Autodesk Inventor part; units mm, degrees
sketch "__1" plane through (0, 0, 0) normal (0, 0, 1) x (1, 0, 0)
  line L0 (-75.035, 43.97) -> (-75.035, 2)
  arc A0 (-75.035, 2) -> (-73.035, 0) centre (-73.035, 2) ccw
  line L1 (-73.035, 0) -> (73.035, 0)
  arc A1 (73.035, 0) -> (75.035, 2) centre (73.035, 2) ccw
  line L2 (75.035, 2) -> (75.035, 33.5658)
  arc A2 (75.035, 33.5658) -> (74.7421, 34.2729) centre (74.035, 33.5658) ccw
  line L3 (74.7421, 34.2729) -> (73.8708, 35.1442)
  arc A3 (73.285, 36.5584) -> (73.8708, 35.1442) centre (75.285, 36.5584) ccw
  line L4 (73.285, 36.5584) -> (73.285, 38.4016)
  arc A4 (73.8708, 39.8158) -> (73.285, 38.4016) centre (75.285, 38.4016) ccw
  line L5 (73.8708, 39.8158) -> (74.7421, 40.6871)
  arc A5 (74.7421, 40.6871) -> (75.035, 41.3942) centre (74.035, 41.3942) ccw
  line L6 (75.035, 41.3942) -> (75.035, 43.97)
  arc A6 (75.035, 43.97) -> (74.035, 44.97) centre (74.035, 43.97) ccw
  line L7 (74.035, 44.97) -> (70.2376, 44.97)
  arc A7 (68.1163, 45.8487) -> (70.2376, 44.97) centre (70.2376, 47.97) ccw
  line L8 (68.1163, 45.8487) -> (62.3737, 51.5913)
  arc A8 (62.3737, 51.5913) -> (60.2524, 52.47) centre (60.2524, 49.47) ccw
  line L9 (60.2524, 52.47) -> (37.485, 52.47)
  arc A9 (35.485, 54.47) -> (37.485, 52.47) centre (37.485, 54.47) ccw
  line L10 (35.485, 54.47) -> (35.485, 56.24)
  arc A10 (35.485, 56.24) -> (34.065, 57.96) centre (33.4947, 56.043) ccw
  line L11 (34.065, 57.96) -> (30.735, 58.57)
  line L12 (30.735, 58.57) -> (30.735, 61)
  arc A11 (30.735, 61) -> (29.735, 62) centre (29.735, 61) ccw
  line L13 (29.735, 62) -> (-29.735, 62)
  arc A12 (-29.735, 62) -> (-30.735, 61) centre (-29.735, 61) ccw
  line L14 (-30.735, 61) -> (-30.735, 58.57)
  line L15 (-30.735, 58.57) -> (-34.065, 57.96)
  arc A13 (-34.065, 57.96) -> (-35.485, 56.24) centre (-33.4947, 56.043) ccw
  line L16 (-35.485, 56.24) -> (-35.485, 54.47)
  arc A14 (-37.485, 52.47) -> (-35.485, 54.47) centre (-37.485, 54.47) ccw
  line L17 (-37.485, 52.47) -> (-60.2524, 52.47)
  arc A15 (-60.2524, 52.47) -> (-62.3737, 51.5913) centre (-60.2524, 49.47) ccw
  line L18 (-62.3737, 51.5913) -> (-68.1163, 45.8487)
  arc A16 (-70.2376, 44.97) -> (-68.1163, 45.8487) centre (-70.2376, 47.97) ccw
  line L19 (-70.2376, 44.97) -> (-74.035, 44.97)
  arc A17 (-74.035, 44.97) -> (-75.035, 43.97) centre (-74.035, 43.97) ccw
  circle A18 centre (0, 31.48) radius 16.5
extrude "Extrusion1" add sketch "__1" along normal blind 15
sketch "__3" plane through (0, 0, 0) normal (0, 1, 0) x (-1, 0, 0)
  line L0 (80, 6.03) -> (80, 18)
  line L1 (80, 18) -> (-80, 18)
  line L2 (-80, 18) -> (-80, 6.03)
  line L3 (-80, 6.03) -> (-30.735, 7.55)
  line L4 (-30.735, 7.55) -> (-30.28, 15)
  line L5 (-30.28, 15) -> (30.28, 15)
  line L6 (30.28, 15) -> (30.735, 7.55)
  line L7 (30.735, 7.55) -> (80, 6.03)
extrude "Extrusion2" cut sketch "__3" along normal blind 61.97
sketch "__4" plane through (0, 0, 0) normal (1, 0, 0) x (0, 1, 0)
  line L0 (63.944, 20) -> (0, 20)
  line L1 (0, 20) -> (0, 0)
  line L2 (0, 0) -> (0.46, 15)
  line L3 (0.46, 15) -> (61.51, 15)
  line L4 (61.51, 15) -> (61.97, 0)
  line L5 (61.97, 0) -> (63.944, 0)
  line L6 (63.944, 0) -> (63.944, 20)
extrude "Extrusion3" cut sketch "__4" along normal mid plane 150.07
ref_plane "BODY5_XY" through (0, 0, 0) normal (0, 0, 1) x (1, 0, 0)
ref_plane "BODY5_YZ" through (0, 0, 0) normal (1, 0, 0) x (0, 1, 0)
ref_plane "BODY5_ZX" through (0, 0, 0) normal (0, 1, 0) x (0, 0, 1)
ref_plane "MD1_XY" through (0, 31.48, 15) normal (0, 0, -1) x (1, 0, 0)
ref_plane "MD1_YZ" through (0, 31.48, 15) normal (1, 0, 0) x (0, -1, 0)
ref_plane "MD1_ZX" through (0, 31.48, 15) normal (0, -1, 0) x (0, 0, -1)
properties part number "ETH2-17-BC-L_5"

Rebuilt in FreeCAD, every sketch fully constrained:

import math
import FreeCAD as App
import Part
import Sketcher

V = App.Vector
Q = App.Units.Quantity

doc = App.newDocument("Part")
body = doc.addObject("PartDesign::Body", "Body")

# Sketch on XY plane
sketch1 = body.newObject("Sketcher::SketchObject", "Sketch")
sketch1.AttachmentSupport = (doc.getObject("XY_Plane"), [""])
sketch1.MapMode = "FlatFace"
sketch1.addGeometry([
    Part.ArcOfCircle(Part.Circle(V(-74, 44, 0), V(0, 0, 1), 1), math.radians(90), math.radians(180)),  # 0
    Part.LineSegment(V(-75, 44, 0), V(-75, 2, 0)),  # 1
    Part.ArcOfCircle(Part.Circle(V(-73, 2, 0), V(0, 0, 1), 2), math.radians(180), math.radians(270)),  # 2
    Part.LineSegment(V(-73, 0, 0), V(73, 0, 0)),  # 3
    Part.ArcOfCircle(Part.Circle(V(73, 2, 0), V(0, 0, 1), 2), math.radians(-90), math.radians(0)),  # 4
    Part.LineSegment(V(75, 2, 0), V(75, 33.6, 0)),  # 5
    Part.ArcOfCircle(Part.Circle(V(74, 33.6, 0), V(0, 0, 1), 1), math.radians(0), math.radians(45)),  # 6
    Part.LineSegment(V(74.7, 34.3, 0), V(73.9, 35.1, 0)),  # 7
    Part.ArcOfCircle(Part.Circle(V(75.3, 36.6, 0), V(0, 0, 1), 2), math.radians(180), math.radians(225)),  # 8
    Part.LineSegment(V(73.3, 36.6, 0), V(73.3, 38.4, 0)),  # 9
    Part.ArcOfCircle(Part.Circle(V(75.3, 38.4, 0), V(0, 0, 1), 2), math.radians(135), math.radians(180)),  # 10
    Part.LineSegment(V(73.9, 39.8, 0), V(74.7, 40.7, 0)),  # 11
    Part.ArcOfCircle(Part.Circle(V(74, 41.4, 0), V(0, 0, 1), 1), math.radians(-45), math.radians(0)),  # 12
    Part.LineSegment(V(75, 41.4, 0), V(75, 44, 0)),  # 13
    Part.ArcOfCircle(Part.Circle(V(74, 44, 0), V(0, 0, 1), 1), math.radians(0), math.radians(90)),  # 14
    Part.LineSegment(V(74, 45, 0), V(70.2, 45, 0)),  # 15
    Part.ArcOfCircle(Part.Circle(V(70.2, 48, 0), V(0, 0, 1), 3), math.radians(-135), math.radians(-90)),  # 16
    Part.LineSegment(V(68.1, 45.8, 0), V(62.4, 51.6, 0)),  # 17
    Part.ArcOfCircle(Part.Circle(V(60.3, 49.5, 0), V(0, 0, 1), 3), math.radians(45), math.radians(90)),  # 18
    Part.LineSegment(V(60.3, 52.5, 0), V(37.5, 52.5, 0)),  # 19
    Part.ArcOfCircle(Part.Circle(V(37.5, 54.5, 0), V(0, 0, 1), 2), math.radians(180), math.radians(270)),  # 20
    Part.LineSegment(V(35.5, 54.5, 0), V(35.5, 56.2, 0)),  # 21
    Part.ArcOfCircle(Part.Circle(V(33.5, 56, 0), V(0, 0, 1), 2), math.radians(6), math.radians(73)),  # 22
    Part.LineSegment(V(34.1, 58, 0), V(30.7, 58.6, 0)),  # 23
    Part.LineSegment(V(30.7, 58.6, 0), V(30.7, 61, 0)),  # 24
    Part.ArcOfCircle(Part.Circle(V(29.7, 61, 0), V(0, 0, 1), 1), math.radians(0), math.radians(90)),  # 25
    Part.LineSegment(V(29.7, 62, 0), V(-29.7, 62, 0)),  # 26
    Part.ArcOfCircle(Part.Circle(V(-29.7, 61, 0), V(0, 0, 1), 1), math.radians(90), math.radians(180)),  # 27
    Part.LineSegment(V(-30.7, 61, 0), V(-30.7, 58.6, 0)),  # 28
    Part.LineSegment(V(-30.7, 58.6, 0), V(-34.1, 58, 0)),  # 29
    Part.ArcOfCircle(Part.Circle(V(-33.5, 56, 0), V(0, 0, 1), 2), math.radians(107), math.radians(174)),  # 30
    Part.LineSegment(V(-35.5, 56.2, 0), V(-35.5, 54.5, 0)),  # 31
    Part.ArcOfCircle(Part.Circle(V(-37.5, 54.5, 0), V(0, 0, 1), 2), math.radians(-90), math.radians(0)),  # 32
    Part.LineSegment(V(-37.5, 52.5, 0), V(-60.3, 52.5, 0)),  # 33
    Part.ArcOfCircle(Part.Circle(V(-60.3, 49.5, 0), V(0, 0, 1), 3), math.radians(90), math.radians(135)),  # 34
    Part.LineSegment(V(-62.4, 51.6, 0), V(-68.1, 45.8, 0)),  # 35
    Part.ArcOfCircle(Part.Circle(V(-70.2, 48, 0), V(0, 0, 1), 3), math.radians(-90), math.radians(-45)),  # 36
    Part.LineSegment(V(-70.2, 45, 0), V(-74, 45, 0)),  # 37
    Part.Circle(V(0, 31.5, 0), V(0, 0, 1), 16.5),  # 38
], False)
sketch1.addConstraint([
    Sketcher.Constraint("Tangent", 0, 2, 1, 1),
    Sketcher.Constraint("Tangent", 1, 2, 2, 1),
    Sketcher.Constraint("Tangent", 2, 2, 3, 1),
    Sketcher.Constraint("Tangent", 3, 2, 4, 1),
    Sketcher.Constraint("Tangent", 4, 2, 5, 1),
    Sketcher.Constraint("Tangent", 5, 2, 6, 1),
    Sketcher.Constraint("Tangent", 6, 2, 7, 1),
    Sketcher.Constraint("Tangent", 7, 2, 8, 2),
    Sketcher.Constraint("Tangent", 8, 1, 9, 1),
    Sketcher.Constraint("Tangent", 9, 2, 10, 2),
    Sketcher.Constraint("Tangent", 10, 1, 11, 1),
    Sketcher.Constraint("Tangent", 11, 2, 12, 1),
    Sketcher.Constraint("Tangent", 12, 2, 13, 1),
    Sketcher.Constraint("Tangent", 13, 2, 14, 1),
    Sketcher.Constraint("Tangent", 14, 2, 15, 1),
    Sketcher.Constraint("Tangent", 15, 2, 16, 2),
    Sketcher.Constraint("Tangent", 16, 1, 17, 1),
    Sketcher.Constraint("Tangent", 17, 2, 18, 1),
    Sketcher.Constraint("Tangent", 18, 2, 19, 1),
    Sketcher.Constraint("Tangent", 19, 2, 20, 2),
    Sketcher.Constraint("Tangent", 20, 1, 21, 1),
    Sketcher.Constraint("Coincident", 21, 2, 22, 1),
    Sketcher.Constraint("Coincident", 22, 2, 23, 1),
    Sketcher.Constraint("Coincident", 23, 2, 24, 1),
    Sketcher.Constraint("Tangent", 24, 2, 25, 1),
    Sketcher.Constraint("Tangent", 25, 2, 26, 1),
    Sketcher.Constraint("Tangent", 26, 2, 27, 1),
    Sketcher.Constraint("Tangent", 27, 2, 28, 1),
    Sketcher.Constraint("Coincident", 28, 2, 29, 1),
    Sketcher.Constraint("Coincident", 29, 2, 30, 1),
    Sketcher.Constraint("Coincident", 30, 2, 31, 1),
    Sketcher.Constraint("Tangent", 31, 2, 32, 2),
    Sketcher.Constraint("Tangent", 32, 1, 33, 1),
    Sketcher.Constraint("Tangent", 33, 2, 34, 1),
    Sketcher.Constraint("Tangent", 34, 2, 35, 1),
    Sketcher.Constraint("Tangent", 35, 2, 36, 2),
    Sketcher.Constraint("Tangent", 36, 1, 37, 1),
    Sketcher.Constraint("Tangent", 37, 2, 0, 1),
    Sketcher.Constraint("Vertical", 1),
    Sketcher.Constraint("Horizontal", 3),
    Sketcher.Constraint("Vertical", 5),
    Sketcher.Constraint("Vertical", 9),
    Sketcher.Constraint("Vertical", 13),
    Sketcher.Constraint("Horizontal", 15),
    Sketcher.Constraint("Horizontal", 19),
    Sketcher.Constraint("Vertical", 21),
    Sketcher.Constraint("Vertical", 24),
    Sketcher.Constraint("Horizontal", 26),
    Sketcher.Constraint("Vertical", 28),
    Sketcher.Constraint("Vertical", 31),
    Sketcher.Constraint("Horizontal", 33),
    Sketcher.Constraint("Horizontal", 37),
    Sketcher.Constraint("Equal", 2, 4),
    Sketcher.Constraint("Equal", 0, 6),
    Sketcher.Constraint("Equal", 4, 8),
    Sketcher.Constraint("Equal", 8, 10),
    Sketcher.Constraint("Equal", 6, 12),
    Sketcher.Constraint("Equal", 12, 14),
    Sketcher.Constraint("Equal", 16, 18),
    Sketcher.Constraint("Equal", 10, 20),
    Sketcher.Constraint("Equal", 20, 22),
    Sketcher.Constraint("Equal", 14, 25),
    Sketcher.Constraint("Equal", 25, 27),
    Sketcher.Constraint("Equal", 22, 30),
    Sketcher.Constraint("Equal", 30, 32),
    Sketcher.Constraint("Equal", 18, 34),
    Sketcher.Constraint("Equal", 34, 36),
    Sketcher.Constraint("Symmetric", 2, 2, 3, 2, -1, 1),
    Sketcher.Constraint("Symmetric", 0, 3, 14, 3, -2),
    Sketcher.Constraint("Symmetric", 22, 3, 30, 3, -2),
    Sketcher.Constraint("Symmetric", 20, 3, 32, 3, -2),
    Sketcher.Constraint("Symmetric", 23, 2, 28, 2, -2),
    Sketcher.Constraint("Symmetric", 17, 2, 34, 2, -2),
    Sketcher.Constraint("PointOnObject", 38, 3, -2),
    Sketcher.Constraint("Perpendicular", 7, 11),
    Sketcher.Constraint("Perpendicular", 11, 17),
    Sketcher.Constraint("Perpendicular", 17, 35),
    Sketcher.Constraint("Horizontal", 22, 2, 29, 2),
    Sketcher.Constraint("Diameter", 38, 33.0),
    Sketcher.Constraint("Radius", 0, 1.0),
    Sketcher.Constraint("Radius", 2, 2.0),
    Sketcher.Constraint("Radius", 16, 3.0),
    Sketcher.Constraint("DistanceY", -1, 1, 25, 3, 61.0),
    Sketcher.Constraint("DistanceX", 3, 1, 3, 2, 146.07),
    Sketcher.Constraint("DistanceX", 26, 2, 26, 1, 59.47),
    Sketcher.Constraint("DistanceY", 1, 2, 1, 1, 41.97),
    Sketcher.Constraint("DistanceY", 21, 1, 21, 2, 1.77),
    Sketcher.Constraint("DistanceY", 24, 1, 24, 2, 2.43),
    Sketcher.Constraint("Angle", 23, Q("169.6195 deg")),
    Sketcher.Constraint("DistanceY", 16, 3, 18, 3, 1.5),
    Sketcher.Constraint("DistanceX", 20, 3, 10, 3, 37.8),
    Sketcher.Constraint("DistanceY", -1, 1, 38, 3, 31.48),
    Sketcher.Constraint("DistanceY", -1, 1, 22, 2, 57.96),
    Sketcher.Constraint("DistanceX", 6, 3, 8, 3, 1.25),
    Sketcher.Constraint("DistanceX", 15, 2, 15, 1, 3.7974),
    Sketcher.Constraint("DistanceY", 5, 1, 5, 2, 31.5658),
    Sketcher.Constraint("DistanceY", 9, 1, 9, 2, 1.8432),
])
pad1 = body.newObject("PartDesign::Pad", "Pad")
pad1.Profile = sketch1
pad1.Length = 15

# Sketch on XZ plane
sketch2 = body.newObject("Sketcher::SketchObject", "Sketch001")
sketch2.AttachmentSupport = (doc.getObject("XZ_Plane"), [""])
sketch2.MapMode = "FlatFace"
sketch2.addGeometry([
    Part.LineSegment(V(-31, 8, 0), V(-80, 6, 0)),  # 0
    Part.LineSegment(V(-80, 6, 0), V(-80, 18, 0)),  # 1
    Part.LineSegment(V(-80, 18, 0), V(80, 18, 0)),  # 2
    Part.LineSegment(V(80, 18, 0), V(80, 6, 0)),  # 3
    Part.LineSegment(V(80, 6, 0), V(31, 8, 0)),  # 4
    Part.LineSegment(V(31, 8, 0), V(30, 15, 0)),  # 5
    Part.LineSegment(V(30, 15, 0), V(-30, 15, 0)),  # 6
    Part.LineSegment(V(-30, 15, 0), V(-31, 8, 0)),  # 7
], False)
sketch2.addConstraint([
    Sketcher.Constraint("Coincident", 0, 2, 1, 1),
    Sketcher.Constraint("Coincident", 1, 2, 2, 1),
    Sketcher.Constraint("Coincident", 2, 2, 3, 1),
    Sketcher.Constraint("Coincident", 3, 2, 4, 1),
    Sketcher.Constraint("Coincident", 4, 2, 5, 1),
    Sketcher.Constraint("Coincident", 5, 2, 6, 1),
    Sketcher.Constraint("Coincident", 6, 2, 7, 1),
    Sketcher.Constraint("Coincident", 7, 2, 0, 1),
    Sketcher.Constraint("Vertical", 1),
    Sketcher.Constraint("Horizontal", 2),
    Sketcher.Constraint("Vertical", 3),
    Sketcher.Constraint("Horizontal", 6),
    Sketcher.Constraint("Symmetric", 0, 2, 3, 2, -2),
    Sketcher.Constraint("Symmetric", 4, 2, 7, 2, -2),
    Sketcher.Constraint("Equal", 5, 7),
    Sketcher.Constraint("DistanceX", 2, 1, 2, 2, 160.0),
    Sketcher.Constraint("DistanceY", -1, 1, 1, 2, 18.0),
    Sketcher.Constraint("DistanceY", -1, 1, 5, 2, 15.0),
    Sketcher.Constraint("DistanceX", 6, 2, 6, 1, 60.56),
    Sketcher.Constraint("DistanceY", 1, 1, 1, 2, 11.97),
    Sketcher.Constraint("DistanceY", -1, 1, 4, 2, 7.55),
    Sketcher.Constraint("DistanceX", 7, 2, 4, 2, 61.47),
])
pocket1 = body.newObject("PartDesign::Pocket", "Pocket")
pocket1.Profile = sketch2
pocket1.Length = 61.97

# Sketch on YZ plane
sketch3 = body.newObject("Sketcher::SketchObject", "Sketch002")
sketch3.AttachmentSupport = (doc.getObject("YZ_Plane"), [""])
sketch3.MapMode = "FlatFace"
sketch3.addGeometry([
    Part.LineSegment(V(63.9, 0, 0), V(63.9, 20, 0)),  # 0
    Part.LineSegment(V(63.9, 20, 0), V(0, 20, 0)),  # 1
    Part.LineSegment(V(0, 20, 0), V(0, 0, 0)),  # 2
    Part.LineSegment(V(0, 0, 0), V(0.5, 15, 0)),  # 3
    Part.LineSegment(V(0.5, 15, 0), V(61.5, 15, 0)),  # 4
    Part.LineSegment(V(61.5, 15, 0), V(62, 0, 0)),  # 5
    Part.LineSegment(V(62, 0, 0), V(63.9, 0, 0)),  # 6
], False)
sketch3.addConstraint([
    Sketcher.Constraint("Coincident", 0, 2, 1, 1),
    Sketcher.Constraint("Coincident", 1, 2, 2, 1),
    Sketcher.Constraint("Coincident", 2, 2, 3, 1),
    Sketcher.Constraint("Coincident", 3, 2, 4, 1),
    Sketcher.Constraint("Coincident", 4, 2, 5, 1),
    Sketcher.Constraint("Coincident", 5, 2, 6, 1),
    Sketcher.Constraint("Coincident", 6, 2, 0, 1),
    Sketcher.Constraint("Vertical", 0),
    Sketcher.Constraint("Horizontal", 1),
    Sketcher.Constraint("Vertical", 2),
    Sketcher.Constraint("Horizontal", 4),
    Sketcher.Constraint("Horizontal", 6),
    Sketcher.Constraint("Coincident", 2, 2, -1, 1),
    Sketcher.Constraint("PointOnObject", 5, 2, -1),
    Sketcher.Constraint("Equal", 3, 5),
    Sketcher.Constraint("DistanceY", 0, 1, 0, 2, 20.0),
    Sketcher.Constraint("DistanceY", -1, 1, 3, 2, 15.0),
    Sketcher.Constraint("DistanceX", 4, 1, 4, 2, 61.05),
    Sketcher.Constraint("DistanceX", 1, 2, 1, 1, 63.944),
    Sketcher.Constraint("DistanceX", 6, 1, 6, 2, 1.974),
])
pocket2 = body.newObject("PartDesign::Pocket", "Pocket001")
pocket2.Profile = sketch3
pocket2.Length = 150.07
pocket2.Midplane = True

doc.recompute()
